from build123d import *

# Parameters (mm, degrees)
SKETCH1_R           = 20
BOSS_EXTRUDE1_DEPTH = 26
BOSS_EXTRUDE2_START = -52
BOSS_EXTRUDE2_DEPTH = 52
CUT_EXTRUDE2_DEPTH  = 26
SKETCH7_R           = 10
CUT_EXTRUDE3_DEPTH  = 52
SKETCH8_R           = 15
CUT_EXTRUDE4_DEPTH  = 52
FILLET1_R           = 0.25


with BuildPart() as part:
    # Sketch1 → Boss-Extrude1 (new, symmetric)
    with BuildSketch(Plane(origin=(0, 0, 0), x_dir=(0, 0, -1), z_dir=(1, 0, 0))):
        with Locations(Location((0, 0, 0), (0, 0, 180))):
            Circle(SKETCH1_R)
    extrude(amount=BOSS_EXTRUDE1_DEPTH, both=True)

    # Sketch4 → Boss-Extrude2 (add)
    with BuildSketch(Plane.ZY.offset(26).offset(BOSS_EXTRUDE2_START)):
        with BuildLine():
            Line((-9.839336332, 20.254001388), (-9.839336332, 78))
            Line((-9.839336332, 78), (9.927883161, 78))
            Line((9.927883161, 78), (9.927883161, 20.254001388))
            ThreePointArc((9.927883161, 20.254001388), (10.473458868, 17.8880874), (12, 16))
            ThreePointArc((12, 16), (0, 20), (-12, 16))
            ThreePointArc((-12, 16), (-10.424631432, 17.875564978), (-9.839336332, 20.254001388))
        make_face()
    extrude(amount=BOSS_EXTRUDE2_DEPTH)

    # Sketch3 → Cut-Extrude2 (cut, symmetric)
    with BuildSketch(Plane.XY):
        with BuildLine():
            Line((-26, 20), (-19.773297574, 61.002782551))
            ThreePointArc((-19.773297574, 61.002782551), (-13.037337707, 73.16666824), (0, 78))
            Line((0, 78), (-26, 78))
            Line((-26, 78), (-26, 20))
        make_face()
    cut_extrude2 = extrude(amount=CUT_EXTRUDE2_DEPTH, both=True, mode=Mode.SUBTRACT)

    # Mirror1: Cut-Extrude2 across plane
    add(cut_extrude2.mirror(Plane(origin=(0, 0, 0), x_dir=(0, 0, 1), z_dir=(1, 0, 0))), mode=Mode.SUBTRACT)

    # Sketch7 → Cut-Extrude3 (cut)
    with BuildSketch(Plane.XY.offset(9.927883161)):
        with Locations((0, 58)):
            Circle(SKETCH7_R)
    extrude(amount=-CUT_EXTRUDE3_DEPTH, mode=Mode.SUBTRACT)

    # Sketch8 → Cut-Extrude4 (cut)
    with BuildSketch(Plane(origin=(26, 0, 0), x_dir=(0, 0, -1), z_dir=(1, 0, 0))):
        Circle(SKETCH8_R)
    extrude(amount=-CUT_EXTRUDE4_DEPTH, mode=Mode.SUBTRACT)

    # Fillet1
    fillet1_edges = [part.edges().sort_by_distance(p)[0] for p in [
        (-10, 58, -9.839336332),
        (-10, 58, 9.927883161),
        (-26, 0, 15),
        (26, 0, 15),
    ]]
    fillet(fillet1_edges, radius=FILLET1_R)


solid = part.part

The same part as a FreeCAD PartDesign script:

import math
import FreeCAD as App
import Part
import Sketcher

V = App.Vector


def edges_at(feature, points):
    """Names of the edges that pass closest to the given points."""
    edges = feature.Shape.Edges
    near = lambda p: min(range(len(edges)), key=lambda i: edges[i].distToShape(Part.Vertex(*p))[0])
    return sorted({f"Edge{near(p) + 1}" for p in points})

doc = App.newDocument("Part")
params = doc.addObject("Spreadsheet::Sheet", "Params")
for row, (alias, value) in enumerate([
    ("sketch1_diameter", "40 mm"),
    ("pad1_length", "52 mm"),
    ("sketch2_radius", "20 mm"),
    ("pad2_length", "52 mm"),
    ("sketch3_radius", "20 mm"),
    ("sketch3_width", "26 mm"),
    ("sketch3_height", "58 mm"),
    ("pocket1_length", "52 mm"),
    ("sketch4_diameter", "20 mm"),
    ("pocket2_length", "52 mm"),
    ("sketch5_diameter", "30 mm"),
    ("pocket3_length", "52 mm"),
    ("fillet_radius", "0.25 mm"),
], start=1):
    params.set(f"A{row}", alias)
    params.set(f"B{row}", "=" + value)
    params.setAlias(f"B{row}", alias)

body = doc.addObject("PartDesign::Body", "Body")

# Sketch on YZ plane
sketch1 = body.newObject("Sketcher::SketchObject", "Sketch")
sketch1.AttachmentSupport = (doc.getObject("YZ_Plane"), [""])
sketch1.MapMode = "FlatFace"
sketch1.addGeometry(Part.Circle(V(0, 0, 0), V(0, 0, 1), 20), False)
sketch1.addConstraint(Sketcher.Constraint("Coincident", 0, 3, -1, 1))
sketch1.addConstraint(Sketcher.Constraint("Diameter", 0, 40.0))
sketch1.setExpression("Constraints[1]", "Params.sketch1_diameter")
pad1 = body.newObject("PartDesign::Pad", "Pad")
pad1.Profile = sketch1
pad1.setExpression("Length", "Params.pad1_length")
pad1.Midplane = True

# Sketch on YZ plane
sketch2 = body.newObject("Sketcher::SketchObject", "Sketch001")
sketch2.AttachmentSupport = (doc.getObject("YZ_Plane"), [""])
sketch2.MapMode = "FlatFace"
sketch2.AttachmentOffset = App.Placement(V(0, 0, 26), App.Rotation())
sketch2.addGeometry(Part.LineSegment(V(78, -9.8, 0), V(20.3, -9.8, 0)), False)
sketch2.addGeometry(Part.ArcOfCircle(Part.Circle(V(20.3, -15.2, 0), V(0, 0, 1), 5.4), math.radians(91), math.radians(143)), False)
sketch2.addGeometry(Part.ArcOfCircle(Part.Circle(V(0, 0, 0), V(0, 0, 1), 20), math.radians(-37), math.radians(37)), False)
sketch2.addGeometry(Part.ArcOfCircle(Part.Circle(V(20.3, 15.3, 0), V(0, 0, 1), 5.4), math.radians(-142), math.radians(-90)), False)
sketch2.addGeometry(Part.LineSegment(V(20.3, 9.9, 0), V(78, 9.9, 0)), False)
sketch2.addGeometry(Part.LineSegment(V(78, 9.9, 0), V(78, -9.8, 0)), False)
sketch2.addConstraint(Sketcher.Constraint("Coincident", 0, 2, 1, 1))
sketch2.addConstraint(Sketcher.Constraint("Tangent", 1, 2, 2, 1))
sketch2.addConstraint(Sketcher.Constraint("Coincident", 2, 2, 3, 1))
sketch2.addConstraint(Sketcher.Constraint("Tangent", 3, 2, 4, 1))
sketch2.addConstraint(Sketcher.Constraint("Coincident", 4, 2, 5, 1))
sketch2.addConstraint(Sketcher.Constraint("Coincident", 5, 2, 0, 1))
sketch2.addConstraint(Sketcher.Constraint("Horizontal", 0))
sketch2.addConstraint(Sketcher.Constraint("Horizontal", 4))
sketch2.addConstraint(Sketcher.Constraint("Vertical", 5))
sketch2.addConstraint(Sketcher.Constraint("Coincident", 2, 3, -1, 1))
sketch2.addConstraint(Sketcher.Constraint("Equal", 1, 3))
sketch2.addConstraint(Sketcher.Constraint("Vertical", 3, 3, 0, 2))
sketch2.addConstraint(Sketcher.Constraint("Vertical", 1, 2, 2, 2))
sketch2.addConstraint(Sketcher.Constraint("Radius", 2, 20.0))
sketch2.addConstraint(Sketcher.Constraint("DistanceX", -1, 1, 1, 2, 16.0))
sketch2.addConstraint(Sketcher.Constraint("DistanceX", -1, 1, 4, 2, 78.0))
sketch2.addConstraint(Sketcher.Constraint("DistanceX", 0, 2, 0, 1, 57.745999))
sketch2.addConstraint(Sketcher.Constraint("Radius", 1, 5.402735))
sketch2.setExpression("Constraints[13]", "Params.sketch2_radius")
pad2 = body.newObject("PartDesign::Pad", "Pad001")
pad2.Profile = sketch2
pad2.setExpression("Length", "Params.pad2_length")
pad2.Reversed = True

# Sketch on XY plane
sketch3 = body.newObject("Sketcher::SketchObject", "Sketch002")
sketch3.AttachmentSupport = (doc.getObject("XY_Plane"), [""])
sketch3.MapMode = "FlatFace"
sketch3.addGeometry(Part.LineSegment(V(-26, 20, 0), V(-20, 61, 0)), False)
sketch3.addGeometry(Part.ArcOfCircle(Part.Circle(V(0, 58, 0), V(0, 0, 1), 20), math.radians(90), math.radians(171)), False)
sketch3.addGeometry(Part.LineSegment(V(0, 78, 0), V(-26, 78, 0)), False)
sketch3.addGeometry(Part.LineSegment(V(-26, 78, 0), V(-26, 20, 0)), False)
sketch3.addConstraint(Sketcher.Constraint("Tangent", 0, 2, 1, 2))
sketch3.addConstraint(Sketcher.Constraint("Tangent", 1, 1, 2, 1))
sketch3.addConstraint(Sketcher.Constraint("Coincident", 2, 2, 3, 1))
sketch3.addConstraint(Sketcher.Constraint("Coincident", 3, 2, 0, 1))
sketch3.addConstraint(Sketcher.Constraint("Horizontal", 2))
sketch3.addConstraint(Sketcher.Constraint("Vertical", 3))
sketch3.addConstraint(Sketcher.Constraint("PointOnObject", 1, 3, -2))
sketch3.addConstraint(Sketcher.Constraint("Radius", 1, 20.0))
sketch3.addConstraint(Sketcher.Constraint("DistanceX", 2, 2, 2, 1, 26.0))
sketch3.addConstraint(Sketcher.Constraint("DistanceY", 3, 2, 3, 1, 58.0))
sketch3.addConstraint(Sketcher.Constraint("DistanceY", -1, 1, 1, 3, 58.0))
sketch3.setExpression("Constraints[7]", "Params.sketch3_radius")
sketch3.setExpression("Constraints[8]", "Params.sketch3_width")
sketch3.setExpression("Constraints[9]", "Params.sketch3_height")
pocket1 = body.newObject("PartDesign::Pocket", "Pocket")
pocket1.Profile = sketch3
pocket1.setExpression("Length", "Params.pocket1_length")
pocket1.Midplane = True
doc.recompute()

mirrored = body.newObject("PartDesign::Mirrored", "Mirrored")
mirrored.Originals = [pocket1]
mirrored.MirrorPlane = (doc.getObject("YZ_Plane"), [""])
body.Tip = mirrored

# Sketch on XY plane
sketch4 = body.newObject("Sketcher::SketchObject", "Sketch003")
sketch4.AttachmentSupport = (doc.getObject("XY_Plane"), [""])
sketch4.MapMode = "FlatFace"
sketch4.AttachmentOffset = App.Placement(V(0, 0, 9.927883), App.Rotation())
sketch4.addGeometry(Part.Circle(V(0, 58, 0), V(0, 0, 1), 10), False)
sketch4.addConstraint(Sketcher.Constraint("PointOnObject", 0, 3, -2))
sketch4.addConstraint(Sketcher.Constraint("Diameter", 0, 20.0))
sketch4.addConstraint(Sketcher.Constraint("DistanceY", -1, 1, 0, 3, 58.0))
sketch4.setExpression("Constraints[1]", "Params.sketch4_diameter")
pocket2 = body.newObject("PartDesign::Pocket", "Pocket001")
pocket2.Profile = sketch4
pocket2.setExpression("Length", "Params.pocket2_length")

# Sketch on YZ plane
sketch5 = body.newObject("Sketcher::SketchObject", "Sketch004")
sketch5.AttachmentSupport = (doc.getObject("YZ_Plane"), [""])
sketch5.MapMode = "FlatFace"
sketch5.AttachmentOffset = App.Placement(V(0, 0, 26), App.Rotation())
sketch5.addGeometry(Part.Circle(V(0, 0, 0), V(0, 0, 1), 15), False)
sketch5.addConstraint(Sketcher.Constraint("Coincident", 0, 3, -1, 1))
sketch5.addConstraint(Sketcher.Constraint("Diameter", 0, 30.0))
sketch5.setExpression("Constraints[1]", "Params.sketch5_diameter")
pocket3 = body.newObject("PartDesign::Pocket", "Pocket002")
pocket3.Profile = sketch5
pocket3.setExpression("Length", "Params.pocket3_length")
doc.recompute()

fillet = body.newObject("PartDesign::Fillet", "Fillet")
fillet.Base = (pocket3, edges_at(pocket3, [
    (-10, 58, -9.839),
    (-10, 58, 9.928),
    (-26, 0, 15),
    (26, 0, 15),
]))
fillet.setExpression("Radius", "Params.fillet_radius")

doc.recompute()
